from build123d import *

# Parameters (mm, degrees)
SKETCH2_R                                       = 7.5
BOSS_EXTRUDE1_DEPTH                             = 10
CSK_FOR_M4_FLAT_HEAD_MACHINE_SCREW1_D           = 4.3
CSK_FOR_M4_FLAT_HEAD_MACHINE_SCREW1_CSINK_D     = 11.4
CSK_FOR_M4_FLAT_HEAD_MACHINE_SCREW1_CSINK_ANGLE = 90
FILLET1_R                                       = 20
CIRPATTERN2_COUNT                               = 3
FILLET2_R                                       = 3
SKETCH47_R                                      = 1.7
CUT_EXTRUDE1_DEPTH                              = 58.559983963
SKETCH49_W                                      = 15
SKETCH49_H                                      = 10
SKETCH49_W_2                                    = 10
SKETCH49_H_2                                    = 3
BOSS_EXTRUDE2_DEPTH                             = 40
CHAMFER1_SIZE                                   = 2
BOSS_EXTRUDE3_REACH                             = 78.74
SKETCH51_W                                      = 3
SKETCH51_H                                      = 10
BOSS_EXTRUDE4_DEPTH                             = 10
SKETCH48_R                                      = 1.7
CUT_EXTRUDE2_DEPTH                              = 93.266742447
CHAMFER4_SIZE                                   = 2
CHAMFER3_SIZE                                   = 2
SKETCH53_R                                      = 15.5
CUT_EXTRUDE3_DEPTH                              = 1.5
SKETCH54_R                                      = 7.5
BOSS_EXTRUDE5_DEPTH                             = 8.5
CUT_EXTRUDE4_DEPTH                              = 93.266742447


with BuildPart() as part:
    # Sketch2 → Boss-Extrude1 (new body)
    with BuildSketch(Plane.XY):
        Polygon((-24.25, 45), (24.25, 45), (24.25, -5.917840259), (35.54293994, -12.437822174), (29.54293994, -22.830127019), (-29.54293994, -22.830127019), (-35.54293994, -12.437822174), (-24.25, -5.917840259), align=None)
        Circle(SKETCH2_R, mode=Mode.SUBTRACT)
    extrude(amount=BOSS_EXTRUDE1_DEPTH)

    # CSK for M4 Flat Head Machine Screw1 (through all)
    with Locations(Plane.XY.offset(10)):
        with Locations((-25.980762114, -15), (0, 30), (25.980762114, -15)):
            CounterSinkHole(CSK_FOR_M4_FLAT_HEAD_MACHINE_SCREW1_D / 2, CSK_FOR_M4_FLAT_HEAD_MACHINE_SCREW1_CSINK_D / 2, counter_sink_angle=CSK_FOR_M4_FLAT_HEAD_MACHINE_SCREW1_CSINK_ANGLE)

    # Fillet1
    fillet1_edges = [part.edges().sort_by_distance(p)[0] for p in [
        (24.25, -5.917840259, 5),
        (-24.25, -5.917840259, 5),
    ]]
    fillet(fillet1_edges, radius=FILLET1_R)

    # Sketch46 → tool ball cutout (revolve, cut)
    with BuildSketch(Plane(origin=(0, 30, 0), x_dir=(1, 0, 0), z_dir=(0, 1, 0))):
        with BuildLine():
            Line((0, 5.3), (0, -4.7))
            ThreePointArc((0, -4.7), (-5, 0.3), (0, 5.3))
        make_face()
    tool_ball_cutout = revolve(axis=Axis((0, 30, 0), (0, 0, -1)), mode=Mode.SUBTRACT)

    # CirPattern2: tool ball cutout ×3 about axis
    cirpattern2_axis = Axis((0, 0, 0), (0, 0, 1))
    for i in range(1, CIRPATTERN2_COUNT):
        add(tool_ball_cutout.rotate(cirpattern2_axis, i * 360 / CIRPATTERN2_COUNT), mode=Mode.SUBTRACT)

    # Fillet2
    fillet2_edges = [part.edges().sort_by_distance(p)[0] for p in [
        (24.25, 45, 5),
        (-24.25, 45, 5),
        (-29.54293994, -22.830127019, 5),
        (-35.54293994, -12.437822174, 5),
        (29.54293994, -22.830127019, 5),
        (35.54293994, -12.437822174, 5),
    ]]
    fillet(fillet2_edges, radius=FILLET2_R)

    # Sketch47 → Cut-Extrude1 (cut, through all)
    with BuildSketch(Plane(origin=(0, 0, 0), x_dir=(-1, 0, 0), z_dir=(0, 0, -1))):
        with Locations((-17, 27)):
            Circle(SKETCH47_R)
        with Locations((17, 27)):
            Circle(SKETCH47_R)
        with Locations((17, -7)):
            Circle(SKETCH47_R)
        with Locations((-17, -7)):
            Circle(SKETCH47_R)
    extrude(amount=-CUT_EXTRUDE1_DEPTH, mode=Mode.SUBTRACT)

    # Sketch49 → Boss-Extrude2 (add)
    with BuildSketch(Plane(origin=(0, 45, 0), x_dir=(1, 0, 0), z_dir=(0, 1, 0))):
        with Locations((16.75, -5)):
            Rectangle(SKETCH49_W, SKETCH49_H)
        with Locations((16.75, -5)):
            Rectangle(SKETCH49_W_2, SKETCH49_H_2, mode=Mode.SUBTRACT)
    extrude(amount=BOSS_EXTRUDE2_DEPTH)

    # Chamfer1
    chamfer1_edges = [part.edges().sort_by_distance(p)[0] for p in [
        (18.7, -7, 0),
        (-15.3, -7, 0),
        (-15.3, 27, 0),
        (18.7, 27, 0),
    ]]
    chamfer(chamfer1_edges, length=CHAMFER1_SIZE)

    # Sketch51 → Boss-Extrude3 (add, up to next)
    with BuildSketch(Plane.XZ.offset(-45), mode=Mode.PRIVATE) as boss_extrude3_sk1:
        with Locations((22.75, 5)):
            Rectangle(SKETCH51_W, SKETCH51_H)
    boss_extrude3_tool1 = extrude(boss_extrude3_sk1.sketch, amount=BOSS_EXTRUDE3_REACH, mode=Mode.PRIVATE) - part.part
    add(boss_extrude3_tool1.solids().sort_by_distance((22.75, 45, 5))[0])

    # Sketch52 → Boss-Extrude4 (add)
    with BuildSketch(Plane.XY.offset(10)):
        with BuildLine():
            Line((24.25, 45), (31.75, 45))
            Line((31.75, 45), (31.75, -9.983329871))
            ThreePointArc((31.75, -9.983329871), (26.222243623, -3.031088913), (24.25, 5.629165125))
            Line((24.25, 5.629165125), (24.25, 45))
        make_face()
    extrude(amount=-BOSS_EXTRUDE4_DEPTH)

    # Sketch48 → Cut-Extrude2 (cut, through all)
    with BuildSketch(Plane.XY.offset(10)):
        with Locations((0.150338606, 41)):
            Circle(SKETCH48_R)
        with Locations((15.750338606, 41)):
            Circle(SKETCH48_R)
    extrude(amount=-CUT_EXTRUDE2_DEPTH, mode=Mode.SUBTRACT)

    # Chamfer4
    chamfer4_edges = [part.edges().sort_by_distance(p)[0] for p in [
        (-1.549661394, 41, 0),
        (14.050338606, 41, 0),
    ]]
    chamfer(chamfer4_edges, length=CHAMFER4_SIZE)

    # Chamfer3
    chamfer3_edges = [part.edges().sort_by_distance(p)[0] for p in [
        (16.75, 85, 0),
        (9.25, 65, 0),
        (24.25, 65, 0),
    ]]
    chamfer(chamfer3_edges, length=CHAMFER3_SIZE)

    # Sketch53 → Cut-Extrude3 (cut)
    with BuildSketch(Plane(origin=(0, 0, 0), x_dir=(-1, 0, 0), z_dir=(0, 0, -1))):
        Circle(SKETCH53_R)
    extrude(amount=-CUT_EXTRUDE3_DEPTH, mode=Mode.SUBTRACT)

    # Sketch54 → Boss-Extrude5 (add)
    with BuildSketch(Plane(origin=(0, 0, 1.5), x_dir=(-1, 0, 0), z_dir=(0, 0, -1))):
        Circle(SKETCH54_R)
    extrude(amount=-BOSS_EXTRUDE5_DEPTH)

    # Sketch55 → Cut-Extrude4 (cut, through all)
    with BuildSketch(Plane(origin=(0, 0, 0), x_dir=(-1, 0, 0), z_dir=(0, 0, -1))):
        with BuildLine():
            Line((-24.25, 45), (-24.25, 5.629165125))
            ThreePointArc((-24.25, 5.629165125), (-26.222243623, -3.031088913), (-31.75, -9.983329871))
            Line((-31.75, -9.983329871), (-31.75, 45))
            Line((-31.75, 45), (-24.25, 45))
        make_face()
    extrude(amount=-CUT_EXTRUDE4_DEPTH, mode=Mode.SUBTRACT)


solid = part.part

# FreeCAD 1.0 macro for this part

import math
import FreeCAD as App
import Part
import Sketcher
Q = App.Units.Quantity


def edges_at(feature, points):
    """Names of the edges that pass closest to the given points."""
    edges = feature.Shape.Edges
    near = lambda p: min(range(len(edges)), key=lambda i: edges[i].distToShape(Part.Vertex(*p))[0])
    return sorted({f"Edge{near(p) + 1}" for p in points})

doc = App.newDocument("Part")
body = doc.addObject("PartDesign::Body", "Body")

# Sketch on XY plane
sketch1 = body.newObject("Sketcher::SketchObject", "Sketch")
sketch1.AttachmentSupport = (doc.getObject("XY_Plane"), [""])
sketch1.MapMode = "FlatFace"
sketch1.addGeometry(Part.LineSegment(App.Vector(24, 45, 0), App.Vector(-24, 45, 0)), False)
sketch1.addGeometry(Part.LineSegment(App.Vector(-24, 45, 0), App.Vector(-24, -6, 0)), False)
sketch1.addGeometry(Part.LineSegment(App.Vector(-24, -6, 0), App.Vector(-36, -12, 0)), False)
sketch1.addGeometry(Part.LineSegment(App.Vector(-36, -12, 0), App.Vector(-30, -23, 0)), False)
sketch1.addGeometry(Part.LineSegment(App.Vector(-30, -23, 0), App.Vector(30, -23, 0)), False)
sketch1.addGeometry(Part.LineSegment(App.Vector(30, -23, 0), App.Vector(36, -12, 0)), False)
sketch1.addGeometry(Part.LineSegment(App.Vector(36, -12, 0), App.Vector(24, -6, 0)), False)
sketch1.addGeometry(Part.LineSegment(App.Vector(24, -6, 0), App.Vector(24, 45, 0)), False)
sketch1.addGeometry(Part.Circle(App.Vector(0, 0, 0), App.Vector(0, 0, 1), 8), False)
sketch1.addConstraint(Sketcher.Constraint("Coincident", 0, 2, 1, 1))
sketch1.addConstraint(Sketcher.Constraint("Coincident", 1, 2, 2, 1))
sketch1.addConstraint(Sketcher.Constraint("Coincident", 2, 2, 3, 1))
sketch1.addConstraint(Sketcher.Constraint("Coincident", 3, 2, 4, 1))
sketch1.addConstraint(Sketcher.Constraint("Coincident", 4, 2, 5, 1))
sketch1.addConstraint(Sketcher.Constraint("Coincident", 5, 2, 6, 1))
sketch1.addConstraint(Sketcher.Constraint("Coincident", 6, 2, 7, 1))
sketch1.addConstraint(Sketcher.Constraint("Coincident", 7, 2, 0, 1))
sketch1.addConstraint(Sketcher.Constraint("Horizontal", 0))
sketch1.addConstraint(Sketcher.Constraint("Vertical", 1))
sketch1.addConstraint(Sketcher.Constraint("Horizontal", 4))
sketch1.addConstraint(Sketcher.Constraint("Vertical", 7))
sketch1.addConstraint(Sketcher.Constraint("Coincident", 8, 3, -1, 1))
sketch1.addConstraint(Sketcher.Constraint("Symmetric", 2, 2, 5, 2, -2))
sketch1.addConstraint(Sketcher.Constraint("Symmetric", 1, 2, 6, 2, -2))
sketch1.addConstraint(Sketcher.Constraint("Perpendicular", 2, 3))
sketch1.addConstraint(Sketcher.Constraint("Perpendicular", 5, 6))
sketch1.addConstraint(Sketcher.Constraint("Diameter", 8, Q("15 mm")))
sketch1.addConstraint(Sketcher.Constraint("Angle", 2, Q("-150 deg")))
sketch1.addConstraint(Sketcher.Constraint("Distance", 3, Q("12 mm")))
sketch1.addConstraint(Sketcher.Constraint("DistanceX", 0, 2, 0, 1, Q("48.5 mm")))
sketch1.addConstraint(Sketcher.Constraint("DistanceY", -1, 1, 0, 2, Q("45 mm")))
sketch1.addConstraint(Sketcher.Constraint("DistanceX", 4, 1, 4, 2, Q("59.08588 mm")))
sketch1.addConstraint(Sketcher.Constraint("DistanceY", 1, 2, 1, 1, Q("50.91784 mm")))
pad1 = body.newObject("PartDesign::Pad", "Pad")
pad1.Profile = sketch1
pad1.Length = 10

# Sketch on XY plane
sketch2 = body.newObject("Sketcher::SketchObject", "Sketch001")
sketch2.AttachmentSupport = (doc.getObject("XY_Plane"), [""])
sketch2.MapMode = "FlatFace"
sketch2.AttachmentOffset = App.Placement(App.Vector(0, 0, 10), App.Rotation())
sketch2.addGeometry(Part.Circle(App.Vector(-26, -15, 0), App.Vector(0, 0, 1), 2.1), False)
sketch2.addGeometry(Part.Circle(App.Vector(0, 30, 0), App.Vector(0, 0, 1), 2.1), False)
sketch2.addGeometry(Part.Circle(App.Vector(26, -15, 0), App.Vector(0, 0, 1), 2.1), False)
sketch2.addConstraint(Sketcher.Constraint("Equal", 0, 1))
sketch2.addConstraint(Sketcher.Constraint("Equal", 1, 2))
sketch2.addConstraint(Sketcher.Constraint("Symmetric", 0, 3, 2, 3, -2))
sketch2.addConstraint(Sketcher.Constraint("PointOnObject", 1, 3, -2))
sketch2.addConstraint(Sketcher.Constraint("Diameter", 0, Q("4.3 mm")))
sketch2.addConstraint(Sketcher.Constraint("DistanceY", 0, 3, -1, 1, Q("15 mm")))
sketch2.addConstraint(Sketcher.Constraint("DistanceY", -1, 1, 1, 3, Q("30 mm")))
sketch2.addConstraint(Sketcher.Constraint("DistanceX", 0, 3, -1, 1, Q("25.980762 mm")))
doc.recompute()
hole = body.newObject("PartDesign::Hole", "Hole")
hole.Profile = sketch2
hole.ThreadType = "None"
hole.Diameter = 4.3
hole.DepthType = "ThroughAll"
hole.HoleCutType = "Countersink"
hole.HoleCutDiameter = 11.4
hole.HoleCutCountersinkAngle = 90
doc.recompute()

fillet = body.newObject("PartDesign::Fillet", "Fillet")
fillet.Base = (hole, edges_at(hole, [(24.25, -5.918, 5), (-24.25, -5.918, 5)]))
fillet.Radius = 20

# Sketch on XZ plane
sketch3 = body.newObject("Sketcher::SketchObject", "Sketch002")
sketch3.AttachmentSupport = (doc.getObject("XZ_Plane"), [""])
sketch3.MapMode = "FlatFace"
sketch3.AttachmentOffset = App.Placement(App.Vector(0, 0, -30), App.Rotation())
sketch3.addGeometry(Part.LineSegment(App.Vector(0, 5, 0), App.Vector(0, -5, 0)), False)
sketch3.addGeometry(Part.ArcOfCircle(Part.Circle(App.Vector(0, 0, 0), App.Vector(0, 0, 1), 5), math.radians(90), math.radians(270)), False)
sketch3.addConstraint(Sketcher.Constraint("Coincident", 0, 1, 1, 1))
sketch3.addConstraint(Sketcher.Constraint("Coincident", 1, 2, 0, 2))
sketch3.addConstraint(Sketcher.Constraint("Vertical", 0))
sketch3.addConstraint(Sketcher.Constraint("PointOnObject", 1, 3, -2))
sketch3.addConstraint(Sketcher.Constraint("PointOnObject", 0, 1, -2))
sketch3.addConstraint(Sketcher.Constraint("Radius", 1, Q("5 mm")))
sketch3.addConstraint(Sketcher.Constraint("DistanceY", 1, 3, -1, 1, Q("0.3 mm")))
groove = body.newObject("PartDesign::Groove", "Groove")
groove.Profile = sketch3
groove.ReferenceAxis = (sketch3, ["V_Axis"])
groove.Angle = 360
doc.recompute()

polarpattern = body.newObject("PartDesign::PolarPattern", "PolarPattern")
polarpattern.Originals = [groove]
polarpattern.Axis = (doc.getObject("Z_Axis"), [""])
polarpattern.Angle = 360
polarpattern.Occurrences = 3
body.Tip = polarpattern
doc.recompute()

fillet2 = body.newObject("PartDesign::Fillet", "Fillet001")
fillet2.Base = (polarpattern, edges_at(polarpattern, [
    (24.25, 45, 5),
    (-24.25, 45, 5),
    (-29.543, -22.83, 5),
    (-35.543, -12.438, 5),
    (29.543, -22.83, 5),
    (35.543, -12.438, 5),
]))
fillet2.Radius = 3

# Sketch on XY plane
sketch4 = body.newObject("Sketcher::SketchObject", "Sketch003")
sketch4.AttachmentSupport = (doc.getObject("XY_Plane"), [""])
sketch4.MapMode = "FlatFace"
sketch4.addGeometry(Part.Circle(App.Vector(17, 27, 0), App.Vector(0, 0, 1), 1.7), False)
sketch4.addGeometry(Part.Circle(App.Vector(-17, 27, 0), App.Vector(0, 0, 1), 1.7), False)
sketch4.addGeometry(Part.Circle(App.Vector(-17, -7, 0), App.Vector(0, 0, 1), 1.7), False)
sketch4.addGeometry(Part.Circle(App.Vector(17, -7, 0), App.Vector(0, 0, 1), 1.7), False)
sketch4.addConstraint(Sketcher.Constraint("Equal", 0, 1))
sketch4.addConstraint(Sketcher.Constraint("Equal", 1, 2))
sketch4.addConstraint(Sketcher.Constraint("Equal", 2, 3))
sketch4.addConstraint(Sketcher.Constraint("Symmetric", 0, 3, 1, 3, -2))
sketch4.addConstraint(Sketcher.Constraint("Symmetric", 2, 3, 3, 3, -2))
sketch4.addConstraint(Sketcher.Constraint("Vertical", 1, 3, 2, 3))
sketch4.addConstraint(Sketcher.Constraint("Diameter", 0, Q("3.4 mm")))
sketch4.addConstraint(Sketcher.Constraint("DistanceX", -1, 1, 0, 3, Q("17 mm")))
sketch4.addConstraint(Sketcher.Constraint("DistanceY", -1, 1, 0, 3, Q("27 mm")))
sketch4.addConstraint(Sketcher.Constraint("DistanceY", 2, 3, -1, 1, Q("7 mm")))
pocket1 = body.newObject("PartDesign::Pocket", "Pocket")
pocket1.Profile = sketch4
pocket1.Type = "ThroughAll"
pocket1.Reversed = True

# Sketch on XZ plane
sketch5 = body.newObject("Sketcher::SketchObject", "Sketch004")
sketch5.AttachmentSupport = (doc.getObject("XZ_Plane"), [""])
sketch5.MapMode = "FlatFace"
sketch5.AttachmentOffset = App.Placement(App.Vector(0, 0, -45), App.Rotation())
sketch5.addGeometry(Part.LineSegment(App.Vector(9.2, 0, 0), App.Vector(9.2, 10, 0)), False)
sketch5.addGeometry(Part.LineSegment(App.Vector(9.2, 10, 0), App.Vector(24.2, 10, 0)), False)
sketch5.addGeometry(Part.LineSegment(App.Vector(24.2, 10, 0), App.Vector(24.2, 0, 0)), False)
sketch5.addGeometry(Part.LineSegment(App.Vector(24.2, 0, 0), App.Vector(9.2, 0, 0)), False)
sketch5.addGeometry(Part.LineSegment(App.Vector(21.8, 6.5, 0), App.Vector(11.8, 6.5, 0)), False)
sketch5.addGeometry(Part.LineSegment(App.Vector(11.8, 6.5, 0), App.Vector(11.8, 3.5, 0)), False)
sketch5.addGeometry(Part.LineSegment(App.Vector(11.8, 3.5, 0), App.Vector(21.8, 3.5, 0)), False)
sketch5.addGeometry(Part.LineSegment(App.Vector(21.8, 3.5, 0), App.Vector(21.8, 6.5, 0)), False)
sketch5.addConstraint(Sketcher.Constraint("Coincident", 0, 2, 1, 1))
sketch5.addConstraint(Sketcher.Constraint("Coincident", 1, 2, 2, 1))
sketch5.addConstraint(Sketcher.Constraint("Coincident", 2, 2, 3, 1))
sketch5.addConstraint(Sketcher.Constraint("Coincident", 3, 2, 0, 1))
sketch5.addConstraint(Sketcher.Constraint("Coincident", 4, 2, 5, 1))
sketch5.addConstraint(Sketcher.Constraint("Coincident", 5, 2, 6, 1))
sketch5.addConstraint(Sketcher.Constraint("Coincident", 6, 2, 7, 1))
sketch5.addConstraint(Sketcher.Constraint("Coincident", 7, 2, 4, 1))
sketch5.addConstraint(Sketcher.Constraint("Vertical", 0))
sketch5.addConstraint(Sketcher.Constraint("Horizontal", 1))
sketch5.addConstraint(Sketcher.Constraint("Vertical", 2))
sketch5.addConstraint(Sketcher.Constraint("Horizontal", 3))
sketch5.addConstraint(Sketcher.Constraint("Horizontal", 4))
sketch5.addConstraint(Sketcher.Constraint("Vertical", 5))
sketch5.addConstraint(Sketcher.Constraint("Horizontal", 6))
sketch5.addConstraint(Sketcher.Constraint("Vertical", 7))
sketch5.addConstraint(Sketcher.Constraint("PointOnObject", 2, 2, -1))
sketch5.addConstraint(Sketcher.Constraint("Equal", 6, 0))
sketch5.addConstraint(Sketcher.Constraint("DistanceX", 1, 1, 1, 2, Q("15 mm")))
sketch5.addConstraint(Sketcher.Constraint("DistanceX", 4, 2, 4, 1, Q("10 mm")))
sketch5.addConstraint(Sketcher.Constraint("DistanceY", 5, 2, 5, 1, Q("3 mm")))
sketch5.addConstraint(Sketcher.Constraint("DistanceY", -1, 1, 4, 2, Q("6.5 mm")))
sketch5.addConstraint(Sketcher.Constraint("DistanceX", 0, 2, 4, 2, Q("2.5 mm")))
sketch5.addConstraint(Sketcher.Constraint("DistanceX", -1, 1, 0, 2, Q("9.25 mm")))
pad2 = body.newObject("PartDesign::Pad", "Pad001")
pad2.Profile = sketch5
pad2.Length = 40
pad2.Reversed = True
doc.recompute()

chamfer = body.newObject("PartDesign::Chamfer", "Chamfer")
chamfer.Base = (pad2, edges_at(pad2, [
    (18.7, -7, 0),
    (-15.3, -7, 0),
    (-15.3, 27, 0),
    (18.7, 27, 0),
]))
chamfer.Size = 2

# Sketch on XZ plane
sketch6 = body.newObject("Sketcher::SketchObject", "Sketch005")
sketch6.AttachmentSupport = (doc.getObject("XZ_Plane"), [""])
sketch6.MapMode = "FlatFace"
sketch6.AttachmentOffset = App.Placement(App.Vector(0, 0, -45), App.Rotation())
sketch6.addGeometry(Part.LineSegment(App.Vector(21.2, 10, 0), App.Vector(21.2, 0, 0)), False)
sketch6.addGeometry(Part.LineSegment(App.Vector(21.2, 0, 0), App.Vector(24.2, 0, 0)), False)
sketch6.addGeometry(Part.LineSegment(App.Vector(24.2, 0, 0), App.Vector(24.2, 10, 0)), False)
sketch6.addGeometry(Part.LineSegment(App.Vector(24.2, 10, 0), App.Vector(21.2, 10, 0)), False)
sketch6.addConstraint(Sketcher.Constraint("Coincident", 0, 2, 1, 1))
sketch6.addConstraint(Sketcher.Constraint("Coincident", 1, 2, 2, 1))
sketch6.addConstraint(Sketcher.Constraint("Coincident", 2, 2, 3, 1))
sketch6.addConstraint(Sketcher.Constraint("Coincident", 3, 2, 0, 1))
sketch6.addConstraint(Sketcher.Constraint("Vertical", 0))
sketch6.addConstraint(Sketcher.Constraint("Horizontal", 1))
sketch6.addConstraint(Sketcher.Constraint("Vertical", 2))
sketch6.addConstraint(Sketcher.Constraint("Horizontal", 3))
sketch6.addConstraint(Sketcher.Constraint("PointOnObject", 0, 2, -1))
sketch6.addConstraint(Sketcher.Constraint("DistanceX", 1, 1, 1, 2, Q("3 mm")))
sketch6.addConstraint(Sketcher.Constraint("DistanceY", 0, 2, 0, 1, Q("10 mm")))
sketch6.addConstraint(Sketcher.Constraint("DistanceX", -1, 1, 0, 2, Q("21.25 mm")))
pad3 = body.newObject("PartDesign::Pad", "Pad002")
pad3.Profile = sketch6
pad3.Length = 3

# Sketch on XY plane
sketch7 = body.newObject("Sketcher::SketchObject", "Sketch006")
sketch7.AttachmentSupport = (doc.getObject("XY_Plane"), [""])
sketch7.MapMode = "FlatFace"
sketch7.AttachmentOffset = App.Placement(App.Vector(0, 0, 10), App.Rotation())
sketch7.addGeometry(Part.LineSegment(App.Vector(32, 45, 0), App.Vector(24, 45, 0)), False)
sketch7.addGeometry(Part.LineSegment(App.Vector(24, 45, 0), App.Vector(24, 6, 0)), False)
sketch7.addGeometry(Part.ArcOfCircle(Part.Circle(App.Vector(44, 6, 0), App.Vector(0, 0, 1), 20), math.radians(-180), math.radians(-129)), False)
sketch7.addGeometry(Part.LineSegment(App.Vector(32, -10, 0), App.Vector(32, 45, 0)), False)
sketch7.addConstraint(Sketcher.Constraint("Coincident", 0, 2, 1, 1))
sketch7.addConstraint(Sketcher.Constraint("Tangent", 1, 2, 2, 1))
sketch7.addConstraint(Sketcher.Constraint("Coincident", 2, 2, 3, 1))
sketch7.addConstraint(Sketcher.Constraint("Coincident", 3, 2, 0, 1))
sketch7.addConstraint(Sketcher.Constraint("Horizontal", 0))
sketch7.addConstraint(Sketcher.Constraint("Vertical", 1))
sketch7.addConstraint(Sketcher.Constraint("Vertical", 3))
sketch7.addConstraint(Sketcher.Constraint("Radius", 2, Q("20 mm")))
sketch7.addConstraint(Sketcher.Constraint("DistanceX", 0, 2, 0, 1, Q("7.5 mm")))
sketch7.addConstraint(Sketcher.Constraint("DistanceY", -1, 1, 0, 2, Q("45 mm")))
sketch7.addConstraint(Sketcher.Constraint("DistanceX", -1, 1, 2, 3, Q("44.25 mm")))
sketch7.addConstraint(Sketcher.Constraint("DistanceY", 3, 1, 3, 2, Q("54.98333 mm")))
pad4 = body.newObject("PartDesign::Pad", "Pad003")
pad4.Profile = sketch7
pad4.Length = 10
pad4.Reversed = True

# Sketch on XY plane
sketch8 = body.newObject("Sketcher::SketchObject", "Sketch007")
sketch8.AttachmentSupport = (doc.getObject("XY_Plane"), [""])
sketch8.MapMode = "FlatFace"
sketch8.AttachmentOffset = App.Placement(App.Vector(0, 0, 10), App.Rotation())
sketch8.addGeometry(Part.Circle(App.Vector(0.2, 41, 0), App.Vector(0, 0, 1), 1.7), False)
sketch8.addGeometry(Part.Circle(App.Vector(15.8, 41, 0), App.Vector(0, 0, 1), 1.7), False)
sketch8.addConstraint(Sketcher.Constraint("Equal", 0, 1))
sketch8.addConstraint(Sketcher.Constraint("Horizontal", 0, 3, 1, 3))
sketch8.addConstraint(Sketcher.Constraint("Diameter", 0, Q("3.4 mm")))
sketch8.addConstraint(Sketcher.Constraint("DistanceY", -1, 1, 0, 3, Q("41 mm")))
sketch8.addConstraint(Sketcher.Constraint("DistanceX", 0, 3, 1, 3, Q("15.6 mm")))
sketch8.addConstraint(Sketcher.Constraint("DistanceX", -1, 1, 0, 3, Q("0.150339 mm")))
pocket2 = body.newObject("PartDesign::Pocket", "Pocket001")
pocket2.Profile = sketch8
pocket2.Type = "ThroughAll"
doc.recompute()

chamfer2 = body.newObject("PartDesign::Chamfer", "Chamfer001")
chamfer2.Base = (pocket2, edges_at(pocket2, [(-1.55, 41, 0), (14.05, 41, 0)]))
chamfer2.Size = 2
doc.recompute()

chamfer3 = body.newObject("PartDesign::Chamfer", "Chamfer002")
chamfer3.Base = (chamfer2, edges_at(chamfer2, [(16.75, 85, 0), (9.25, 65, 0), (24.25, 65, 0)]))
chamfer3.Size = 2

# Sketch on XY plane
sketch9 = body.newObject("Sketcher::SketchObject", "Sketch008")
sketch9.AttachmentSupport = (doc.getObject("XY_Plane"), [""])
sketch9.MapMode = "FlatFace"
sketch9.addGeometry(Part.Circle(App.Vector(0, 0, 0), App.Vector(0, 0, 1), 16), False)
sketch9.addConstraint(Sketcher.Constraint("Coincident", 0, 3, -1, 1))
sketch9.addConstraint(Sketcher.Constraint("Diameter", 0, Q("31 mm")))
pocket3 = body.newObject("PartDesign::Pocket", "Pocket002")
pocket3.Profile = sketch9
pocket3.Length = 1.5
pocket3.Reversed = True

# Sketch on XY plane
sketch10 = body.newObject("Sketcher::SketchObject", "Sketch009")
sketch10.AttachmentSupport = (doc.getObject("XY_Plane"), [""])
sketch10.MapMode = "FlatFace"
sketch10.AttachmentOffset = App.Placement(App.Vector(0, 0, 1.5), App.Rotation())
sketch10.addGeometry(Part.Circle(App.Vector(0, 0, 0), App.Vector(0, 0, 1), 8), False)
sketch10.addConstraint(Sketcher.Constraint("Coincident", 0, 3, -1, 1))
sketch10.addConstraint(Sketcher.Constraint("Diameter", 0, Q("15 mm")))
pad5 = body.newObject("PartDesign::Pad", "Pad004")
pad5.Profile = sketch10
pad5.Length = 8.5

# Sketch on XY plane
sketch11 = body.newObject("Sketcher::SketchObject", "Sketch010")
sketch11.AttachmentSupport = (doc.getObject("XY_Plane"), [""])
sketch11.MapMode = "FlatFace"
sketch11.addGeometry(Part.LineSegment(App.Vector(24, 6, 0), App.Vector(24, 45, 0)), False)
sketch11.addGeometry(Part.LineSegment(App.Vector(24, 45, 0), App.Vector(32, 45, 0)), False)
sketch11.addGeometry(Part.LineSegment(App.Vector(32, 45, 0), App.Vector(32, -10, 0)), False)
sketch11.addGeometry(Part.ArcOfCircle(Part.Circle(App.Vector(44, 6, 0), App.Vector(0, 0, 1), 20), math.radians(-180), math.radians(-129)), False)
sketch11.addConstraint(Sketcher.Constraint("Coincident", 0, 2, 1, 1))
sketch11.addConstraint(Sketcher.Constraint("Coincident", 1, 2, 2, 1))
sketch11.addConstraint(Sketcher.Constraint("Coincident", 2, 2, 3, 2))
sketch11.addConstraint(Sketcher.Constraint("Tangent", 3, 1, 0, 1))
sketch11.addConstraint(Sketcher.Constraint("Vertical", 0))
sketch11.addConstraint(Sketcher.Constraint("Horizontal", 1))
sketch11.addConstraint(Sketcher.Constraint("Vertical", 2))
sketch11.addConstraint(Sketcher.Constraint("Radius", 3, Q("20 mm")))
sketch11.addConstraint(Sketcher.Constraint("DistanceX", 1, 1, 1, 2, Q("7.5 mm")))
sketch11.addConstraint(Sketcher.Constraint("DistanceY", -1, 1, 0, 2, Q("45 mm")))
sketch11.addConstraint(Sketcher.Constraint("DistanceX", -1, 1, 3, 3, Q("44.25 mm")))
sketch11.addConstraint(Sketcher.Constraint("DistanceY", 2, 2, 2, 1, Q("54.98333 mm")))
pocket4 = body.newObject("PartDesign::Pocket", "Pocket003")
pocket4.Profile = sketch11
pocket4.Type = "ThroughAll"
pocket4.Reversed = True

doc.recompute()
